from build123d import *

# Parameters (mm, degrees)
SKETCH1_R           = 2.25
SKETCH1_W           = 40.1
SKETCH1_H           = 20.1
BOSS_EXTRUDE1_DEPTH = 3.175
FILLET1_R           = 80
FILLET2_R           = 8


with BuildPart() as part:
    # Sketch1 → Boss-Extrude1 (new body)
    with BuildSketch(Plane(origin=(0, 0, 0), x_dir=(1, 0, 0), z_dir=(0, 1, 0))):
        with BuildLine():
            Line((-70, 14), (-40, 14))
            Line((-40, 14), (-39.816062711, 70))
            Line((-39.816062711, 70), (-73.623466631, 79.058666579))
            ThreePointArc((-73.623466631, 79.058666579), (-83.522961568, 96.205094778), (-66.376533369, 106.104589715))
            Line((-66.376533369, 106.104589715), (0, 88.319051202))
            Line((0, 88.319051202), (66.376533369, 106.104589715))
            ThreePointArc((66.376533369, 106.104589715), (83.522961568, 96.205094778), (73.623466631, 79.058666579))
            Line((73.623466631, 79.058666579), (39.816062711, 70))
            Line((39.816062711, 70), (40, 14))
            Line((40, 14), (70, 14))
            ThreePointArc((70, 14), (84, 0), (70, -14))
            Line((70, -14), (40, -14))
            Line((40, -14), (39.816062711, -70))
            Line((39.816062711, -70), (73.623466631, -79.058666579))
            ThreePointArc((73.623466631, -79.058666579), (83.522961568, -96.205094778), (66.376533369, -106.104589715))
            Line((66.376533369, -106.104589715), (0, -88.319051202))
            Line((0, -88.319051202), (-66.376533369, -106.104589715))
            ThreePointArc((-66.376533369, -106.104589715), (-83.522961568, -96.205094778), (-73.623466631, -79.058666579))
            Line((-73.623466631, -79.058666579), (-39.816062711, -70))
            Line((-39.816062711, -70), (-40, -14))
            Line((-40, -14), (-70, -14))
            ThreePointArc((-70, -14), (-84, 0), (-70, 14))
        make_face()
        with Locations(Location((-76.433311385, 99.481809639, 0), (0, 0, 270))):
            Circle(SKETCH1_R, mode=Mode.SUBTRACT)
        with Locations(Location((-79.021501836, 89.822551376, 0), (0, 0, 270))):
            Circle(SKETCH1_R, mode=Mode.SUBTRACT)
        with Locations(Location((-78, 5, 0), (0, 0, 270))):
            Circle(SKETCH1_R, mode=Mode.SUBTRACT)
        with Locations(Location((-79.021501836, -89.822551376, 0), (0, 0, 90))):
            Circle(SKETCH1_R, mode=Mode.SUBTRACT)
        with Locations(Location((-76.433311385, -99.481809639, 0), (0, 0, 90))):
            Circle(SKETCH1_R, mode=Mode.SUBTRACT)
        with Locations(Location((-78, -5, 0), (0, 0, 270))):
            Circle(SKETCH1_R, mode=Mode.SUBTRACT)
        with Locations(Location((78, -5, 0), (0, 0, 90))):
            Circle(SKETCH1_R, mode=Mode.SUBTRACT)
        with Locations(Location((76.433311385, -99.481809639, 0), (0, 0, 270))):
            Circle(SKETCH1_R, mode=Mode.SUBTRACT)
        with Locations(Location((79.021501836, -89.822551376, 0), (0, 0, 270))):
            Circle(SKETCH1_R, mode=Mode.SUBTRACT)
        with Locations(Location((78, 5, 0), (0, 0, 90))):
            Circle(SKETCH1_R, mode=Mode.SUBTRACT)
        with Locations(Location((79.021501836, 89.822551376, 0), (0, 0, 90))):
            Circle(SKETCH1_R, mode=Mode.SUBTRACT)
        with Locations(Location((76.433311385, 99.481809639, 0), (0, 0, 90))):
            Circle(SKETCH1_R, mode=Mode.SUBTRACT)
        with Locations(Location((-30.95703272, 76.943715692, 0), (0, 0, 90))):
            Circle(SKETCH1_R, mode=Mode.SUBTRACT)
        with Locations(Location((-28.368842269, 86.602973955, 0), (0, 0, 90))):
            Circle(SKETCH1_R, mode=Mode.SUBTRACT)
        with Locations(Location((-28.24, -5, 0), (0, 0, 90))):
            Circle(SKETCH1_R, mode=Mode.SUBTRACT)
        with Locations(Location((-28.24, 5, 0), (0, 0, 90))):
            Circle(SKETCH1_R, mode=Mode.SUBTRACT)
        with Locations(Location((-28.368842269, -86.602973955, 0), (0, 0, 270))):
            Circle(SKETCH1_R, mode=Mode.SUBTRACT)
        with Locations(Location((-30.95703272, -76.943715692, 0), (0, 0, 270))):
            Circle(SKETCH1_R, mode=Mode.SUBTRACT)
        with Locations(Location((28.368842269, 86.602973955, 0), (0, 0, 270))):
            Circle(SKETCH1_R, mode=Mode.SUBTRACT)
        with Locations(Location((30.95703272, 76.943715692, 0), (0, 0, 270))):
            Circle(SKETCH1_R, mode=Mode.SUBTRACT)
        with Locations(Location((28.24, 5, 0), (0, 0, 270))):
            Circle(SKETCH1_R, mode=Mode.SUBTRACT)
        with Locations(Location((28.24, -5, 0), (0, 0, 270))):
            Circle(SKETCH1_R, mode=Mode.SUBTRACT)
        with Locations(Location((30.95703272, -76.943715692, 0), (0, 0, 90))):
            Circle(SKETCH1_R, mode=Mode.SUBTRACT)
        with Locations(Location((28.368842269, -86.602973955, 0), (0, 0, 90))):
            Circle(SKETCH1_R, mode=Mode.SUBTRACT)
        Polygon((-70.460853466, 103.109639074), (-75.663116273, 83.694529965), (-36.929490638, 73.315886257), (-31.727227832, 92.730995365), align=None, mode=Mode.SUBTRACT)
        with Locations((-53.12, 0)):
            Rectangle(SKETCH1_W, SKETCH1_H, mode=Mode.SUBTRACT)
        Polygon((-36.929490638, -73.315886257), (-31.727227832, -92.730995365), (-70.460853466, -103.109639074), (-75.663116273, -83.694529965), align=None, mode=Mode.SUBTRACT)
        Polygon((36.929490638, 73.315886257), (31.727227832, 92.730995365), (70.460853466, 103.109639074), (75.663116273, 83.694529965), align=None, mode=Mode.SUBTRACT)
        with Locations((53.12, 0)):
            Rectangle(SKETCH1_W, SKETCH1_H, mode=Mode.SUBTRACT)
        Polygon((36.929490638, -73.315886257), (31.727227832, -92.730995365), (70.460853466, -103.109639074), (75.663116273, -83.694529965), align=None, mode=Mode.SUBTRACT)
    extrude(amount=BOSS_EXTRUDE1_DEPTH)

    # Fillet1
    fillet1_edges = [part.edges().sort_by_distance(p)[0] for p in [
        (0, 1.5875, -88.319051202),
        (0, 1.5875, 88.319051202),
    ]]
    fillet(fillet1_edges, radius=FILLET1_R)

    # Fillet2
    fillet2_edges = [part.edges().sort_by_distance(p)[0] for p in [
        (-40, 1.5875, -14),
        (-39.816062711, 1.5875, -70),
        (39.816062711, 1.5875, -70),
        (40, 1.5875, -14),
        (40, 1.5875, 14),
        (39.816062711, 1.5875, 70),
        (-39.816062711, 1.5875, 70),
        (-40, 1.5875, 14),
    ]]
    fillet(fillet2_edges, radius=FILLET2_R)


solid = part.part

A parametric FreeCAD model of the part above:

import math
import FreeCAD as App
import Part
import Sketcher
Q = App.Units.Quantity


def edges_at(feature, points):
    """Names of the edges that pass closest to the given points."""
    edges = feature.Shape.Edges
    near = lambda p: min(range(len(edges)), key=lambda i: edges[i].distToShape(Part.Vertex(*p))[0])
    return sorted({f"Edge{near(p) + 1}" for p in points})


def add_polygon(sketch, points):
    """Adds a closed chain of lines whose ends are joined by coincident constraints."""
    first, n = sketch.GeometryCount, len(points)
    for a, b in zip(points, points[1:] + points[:1]):
        sketch.addGeometry(Part.LineSegment(App.Vector(*a, 0), App.Vector(*b, 0)), False)
    for i in range(n):
        sketch.addConstraint(Sketcher.Constraint("Coincident", first + i, 2, first + (i + 1) % n, 1))

doc = App.newDocument("Part")
params = doc.addObject("Spreadsheet::Sheet", "Params")
for row, (alias, value) in enumerate([
    ("sketch1_radius", "14 mm"),
    ("sketch1_diameter", "4.5 mm"),
    ("sketch1_width", "30 mm"),
    ("sketch1_length", "35 mm"),
    ("sketch1_width2", "40.1 mm"),
    ("pad1_length", "3.175 mm"),
    ("fillet_radius", "80 mm"),
    ("fillet2_radius", "8 mm"),
], start=1):
    params.set(f"A{row}", alias)
    params.set(f"B{row}", "=" + value)
    params.setAlias(f"B{row}", alias)

body = doc.addObject("PartDesign::Body", "Body")

sketch1 = body.newObject("Sketcher::SketchObject", "Sketch")
sketch1.AttachmentSupport = (doc.getObject("XZ_Plane"), [""])
sketch1.MapMode = "FlatFace"
sketch1.addGeometry(Part.LineSegment(App.Vector(-40, -14, 0), App.Vector(-70, -14, 0)), False)
sketch1.addGeometry(Part.ArcOfCircle(Part.Circle(App.Vector(-70, 0, 0), App.Vector(0, 0, 1), 14), math.radians(90), math.radians(270)), False)
sketch1.addGeometry(Part.LineSegment(App.Vector(-70, 14, 0), App.Vector(-40, 14, 0)), False)
sketch1.addGeometry(Part.LineSegment(App.Vector(-40, 14, 0), App.Vector(-39.816063, 70, 0)), False)
sketch1.addGeometry(Part.LineSegment(App.Vector(-39.816063, 70, 0), App.Vector(-73.623467, 79.058667, 0)), False)
sketch1.addGeometry(Part.ArcOfCircle(Part.Circle(App.Vector(-70, 92.581628, 0), App.Vector(0, 0, 1), 14), math.radians(75), math.radians(255)), False)
sketch1.addGeometry(Part.LineSegment(App.Vector(-66.376533, 106.10459, 0), App.Vector(0, 88.319051, 0)), False)
sketch1.addGeometry(Part.LineSegment(App.Vector(0, 88.319051, 0), App.Vector(66.376533, 106.10459, 0)), False)
sketch1.addGeometry(Part.ArcOfCircle(Part.Circle(App.Vector(70, 92.581628, 0), App.Vector(0, 0, 1), 14), math.radians(-75), math.radians(105)), False)
sketch1.addGeometry(Part.LineSegment(App.Vector(73.623467, 79.058667, 0), App.Vector(39.816063, 70, 0)), False)
sketch1.addGeometry(Part.LineSegment(App.Vector(39.816063, 70, 0), App.Vector(40, 14, 0)), False)
sketch1.addGeometry(Part.LineSegment(App.Vector(40, 14, 0), App.Vector(70, 14, 0)), False)
sketch1.addGeometry(Part.ArcOfCircle(Part.Circle(App.Vector(70, 0, 0), App.Vector(0, 0, 1), 14), math.radians(-90), math.radians(90)), False)
sketch1.addGeometry(Part.LineSegment(App.Vector(70, -14, 0), App.Vector(40, -14, 0)), False)
sketch1.addGeometry(Part.LineSegment(App.Vector(40, -14, 0), App.Vector(39.816063, -70, 0)), False)
sketch1.addGeometry(Part.LineSegment(App.Vector(39.816063, -70, 0), App.Vector(73.623467, -79.058667, 0)), False)
sketch1.addGeometry(Part.ArcOfCircle(Part.Circle(App.Vector(70, -92.581628, 0), App.Vector(0, 0, 1), 14), math.radians(-105), math.radians(75)), False)
sketch1.addGeometry(Part.LineSegment(App.Vector(66.376533, -106.10459, 0), App.Vector(0, -88.319051, 0)), False)
sketch1.addGeometry(Part.LineSegment(App.Vector(0, -88.319051, 0), App.Vector(-66.376533, -106.10459, 0)), False)
sketch1.addGeometry(Part.ArcOfCircle(Part.Circle(App.Vector(-70, -92.581628, 0), App.Vector(0, 0, 1), 14), math.radians(105), math.radians(285)), False)
sketch1.addGeometry(Part.LineSegment(App.Vector(-73.623467, -79.058667, 0), App.Vector(-39.816063, -70, 0)), False)
sketch1.addGeometry(Part.LineSegment(App.Vector(-39.816063, -70, 0), App.Vector(-40, -14, 0)), False)
sketch1.addGeometry(Part.Circle(App.Vector(76.433311, 99.48181, 0), App.Vector(0, 0, 1), 2.25), False)
sketch1.addGeometry(Part.Circle(App.Vector(79.021502, 89.822551, 0), App.Vector(0, 0, 1), 2.25), False)
add_polygon(sketch1, [(36.929491, 73.315886), (75.663116, 83.69453), (70.460853, 103.109639), (31.727228, 92.730995)])
sketch1.addGeometry(Part.Circle(App.Vector(28.368842, 86.602974, 0), App.Vector(0, 0, 1), 2.25), False)
sketch1.addGeometry(Part.Circle(App.Vector(30.957033, 76.943716, 0), App.Vector(0, 0, 1), 2.25), False)
sketch1.addGeometry(Part.Circle(App.Vector(78, 5, 0), App.Vector(0, 0, 1), 2.25), False)
sketch1.addGeometry(Part.Circle(App.Vector(28.24, 5, 0), App.Vector(0, 0, 1), 2.25), False)
sketch1.addGeometry(Part.Circle(App.Vector(-28.368842, 86.602974, 0), App.Vector(0, 0, 1), 2.25), False)
sketch1.addGeometry(Part.Circle(App.Vector(-30.957033, 76.943716, 0), App.Vector(0, 0, 1), 2.25), False)
add_polygon(sketch1, [(-36.929491, 73.315886), (-31.727228, 92.730995), (-70.460853, 103.109639), (-75.663116, 83.69453)])
sketch1.addGeometry(Part.Circle(App.Vector(-76.433311, 99.48181, 0), App.Vector(0, 0, 1), 2.25), False)
sketch1.addGeometry(Part.Circle(App.Vector(-79.021502, 89.822551, 0), App.Vector(0, 0, 1), 2.25), False)
sketch1.addGeometry(Part.Circle(App.Vector(-28.24, 5, 0), App.Vector(0, 0, 1), 2.25), False)
sketch1.addGeometry(Part.Circle(App.Vector(-78, 5, 0), App.Vector(0, 0, 1), 2.25), False)
sketch1.addGeometry(Part.Circle(App.Vector(78, -5, 0), App.Vector(0, 0, 1), 2.25), False)
add_polygon(sketch1, [(33.07, 10.05), (33.07, -10.05), (73.17, -10.05), (73.17, 10.05)])
sketch1.addGeometry(Part.Circle(App.Vector(28.24, -5, 0), App.Vector(0, 0, 1), 2.25), False)
sketch1.addGeometry(Part.Circle(App.Vector(79.021502, -89.822551, 0), App.Vector(0, 0, 1), 2.25), False)
sketch1.addGeometry(Part.Circle(App.Vector(76.433311, -99.48181, 0), App.Vector(0, 0, 1), 2.25), False)
add_polygon(sketch1, [(36.929491, -73.315886), (31.727228, -92.730995), (70.460853, -103.109639), (75.663116, -83.69453)])
sketch1.addGeometry(Part.Circle(App.Vector(30.957033, -76.943716, 0), App.Vector(0, 0, 1), 2.25), False)
sketch1.addGeometry(Part.Circle(App.Vector(28.368842, -86.602974, 0), App.Vector(0, 0, 1), 2.25), False)
sketch1.addGeometry(Part.Circle(App.Vector(-28.24, -5, 0), App.Vector(0, 0, 1), 2.25), False)
add_polygon(sketch1, [(-73.17, 10.05), (-73.17, -10.05), (-33.07, -10.05), (-33.07, 10.05)])
sketch1.addGeometry(Part.Circle(App.Vector(-78, -5, 0), App.Vector(0, 0, 1), 2.25), False)
sketch1.addGeometry(Part.Circle(App.Vector(-30.957033, -76.943716, 0), App.Vector(0, 0, 1), 2.25), False)
sketch1.addGeometry(Part.Circle(App.Vector(-28.368842, -86.602974, 0), App.Vector(0, 0, 1), 2.25), False)
add_polygon(sketch1, [(-70.460853, -103.109639), (-31.727228, -92.730995), (-36.929491, -73.315886), (-75.663116, -83.69453)])
sketch1.addGeometry(Part.Circle(App.Vector(-79.021502, -89.822551, 0), App.Vector(0, 0, 1), 2.25), False)
sketch1.addGeometry(Part.Circle(App.Vector(-76.433311, -99.48181, 0), App.Vector(0, 0, 1), 2.25), False)
sketch1.addConstraint([
    Sketcher.Constraint("Tangent", 0, 2, 1, 2),
    Sketcher.Constraint("Tangent", 1, 1, 2, 1),
    Sketcher.Constraint("Coincident", 2, 2, 3, 1),
    Sketcher.Constraint("Coincident", 3, 2, 4, 1),
    Sketcher.Constraint("Tangent", 4, 2, 5, 2),
    Sketcher.Constraint("Tangent", 5, 1, 6, 1),
    Sketcher.Constraint("Coincident", 6, 2, 7, 1),
    Sketcher.Constraint("Tangent", 7, 2, 8, 2),
    Sketcher.Constraint("Tangent", 8, 1, 9, 1),
    Sketcher.Constraint("Coincident", 9, 2, 10, 1),
    Sketcher.Constraint("Coincident", 10, 2, 11, 1),
    Sketcher.Constraint("Tangent", 11, 2, 12, 2),
    Sketcher.Constraint("Tangent", 12, 1, 13, 1),
    Sketcher.Constraint("Coincident", 13, 2, 14, 1),
    Sketcher.Constraint("Coincident", 14, 2, 15, 1),
    Sketcher.Constraint("Tangent", 15, 2, 16, 2),
    Sketcher.Constraint("Tangent", 16, 1, 17, 1),
    Sketcher.Constraint("Coincident", 17, 2, 18, 1),
    Sketcher.Constraint("Tangent", 18, 2, 19, 2),
    Sketcher.Constraint("Tangent", 19, 1, 20, 1),
    Sketcher.Constraint("Coincident", 20, 2, 21, 1),
    Sketcher.Constraint("Coincident", 21, 2, 0, 1),
    Sketcher.Constraint("Horizontal", 0),
    Sketcher.Constraint("Horizontal", 2),
    Sketcher.Constraint("Horizontal", 11),
    Sketcher.Constraint("Horizontal", 13),
    Sketcher.Constraint("Vertical", 43),
    Sketcher.Constraint("Horizontal", 44),
    Sketcher.Constraint("Vertical", 45),
    Sketcher.Constraint("Horizontal", 46),
    Sketcher.Constraint("Vertical", 57),
    Sketcher.Constraint("Horizontal", 58),
    Sketcher.Constraint("Vertical", 59),
    Sketcher.Constraint("Horizontal", 60),
    Sketcher.Constraint("Equal", 1, 5),
    Sketcher.Constraint("Equal", 5, 8),
    Sketcher.Constraint("Equal", 8, 12),
    Sketcher.Constraint("Equal", 12, 16),
    Sketcher.Constraint("Equal", 16, 19),
    Sketcher.Constraint("Equal", 22, 23),
    Sketcher.Constraint("Equal", 23, 28),
    Sketcher.Constraint("Equal", 28, 29),
    Sketcher.Constraint("Equal", 29, 30),
    Sketcher.Constraint("Equal", 30, 31),
    Sketcher.Constraint("Equal", 31, 32),
    Sketcher.Constraint("Equal", 32, 33),
    Sketcher.Constraint("Equal", 33, 38),
    Sketcher.Constraint("Equal", 38, 39),
    Sketcher.Constraint("Equal", 39, 40),
    Sketcher.Constraint("Equal", 40, 41),
    Sketcher.Constraint("Equal", 41, 42),
    Sketcher.Constraint("Equal", 42, 47),
    Sketcher.Constraint("Equal", 47, 48),
    Sketcher.Constraint("Equal", 48, 49),
    Sketcher.Constraint("Equal", 49, 54),
    Sketcher.Constraint("Equal", 54, 55),
    Sketcher.Constraint("Equal", 55, 56),
    Sketcher.Constraint("Equal", 56, 61),
    Sketcher.Constraint("Equal", 61, 62),
    Sketcher.Constraint("Equal", 62, 63),
    Sketcher.Constraint("Equal", 63, 68),
    Sketcher.Constraint("Equal", 68, 69),
    Sketcher.Constraint("Symmetric", 1, 3, 12, 3, -1, 1),
    Sketcher.Constraint("Symmetric", 5, 3, 16, 3, -1, 1),
    Sketcher.Constraint("Symmetric", 8, 3, 19, 3, -1, 1),
    Sketcher.Constraint("Symmetric", 41, 3, 42, 3, -1, 1),
    Sketcher.Constraint("Symmetric", 40, 3, 47, 3, -1, 1),
    Sketcher.Constraint("Symmetric", 39, 3, 48, 3, -1, 1),
    Sketcher.Constraint("Symmetric", 38, 3, 49, 3, -1, 1),
    Sketcher.Constraint("Symmetric", 33, 3, 54, 3, -1, 1),
    Sketcher.Constraint("Symmetric", 32, 3, 55, 3, -1, 1),
    Sketcher.Constraint("Symmetric", 31, 3, 56, 3, -1, 1),
    Sketcher.Constraint("Symmetric", 30, 3, 61, 3, -1, 1),
    Sketcher.Constraint("Symmetric", 29, 3, 62, 3, -1, 1),
    Sketcher.Constraint("Symmetric", 28, 3, 63, 3, -1, 1),
    Sketcher.Constraint("Symmetric", 23, 3, 68, 3, -1, 1),
    Sketcher.Constraint("Symmetric", 22, 3, 69, 3, -1, 1),
    Sketcher.Constraint("Symmetric", 3, 2, 14, 2, -1, 1),
    Sketcher.Constraint("Symmetric", 6, 2, 17, 2, -1, 1),
    Sketcher.Constraint("Symmetric", 9, 2, 20, 2, -1, 1),
    Sketcher.Constraint("Symmetric", 34, 2, 50, 2, -1, 1),
    Sketcher.Constraint("Symmetric", 35, 2, 51, 2, -1, 1),
    Sketcher.Constraint("Symmetric", 36, 2, 52, 2, -1, 1),
    Sketcher.Constraint("Symmetric", 37, 2, 53, 2, -1, 1),
    Sketcher.Constraint("Symmetric", 45, 2, 57, 2, -1, 1),
    Sketcher.Constraint("Symmetric", 43, 2, 59, 2, -1, 1),
    Sketcher.Constraint("Symmetric", 26, 2, 64, 2, -1, 1),
    Sketcher.Constraint("Symmetric", 27, 2, 65, 2, -1, 1),
    Sketcher.Constraint("Symmetric", 24, 2, 66, 2, -1, 1),
    Sketcher.Constraint("Symmetric", 25, 2, 67, 2, -1, 1),
    Sketcher.Constraint("Symmetric", 5, 3, 8, 3, -2),
    Sketcher.Constraint("Symmetric", 28, 3, 32, 3, -2),
    Sketcher.Constraint("Symmetric", 29, 3, 33, 3, -2),
    Sketcher.Constraint("Symmetric", 22, 3, 38, 3, -2),
    Sketcher.Constraint("Symmetric", 23, 3, 39, 3, -2),
    Sketcher.Constraint("Symmetric", 31, 3, 40, 3, -2),
    Sketcher.Constraint("Symmetric", 30, 3, 41, 3, -2),
    Sketcher.Constraint("Symmetric", 3, 2, 9, 2, -2),
    Sketcher.Constraint("Symmetric", 2, 2, 10, 2, -2),
    Sketcher.Constraint("Symmetric", 26, 2, 34, 2, -2),
    Sketcher.Constraint("Symmetric", 25, 2, 35, 2, -2),
    Sketcher.Constraint("Symmetric", 24, 2, 36, 2, -2),
    Sketcher.Constraint("Symmetric", 27, 2, 37, 2, -2),
    Sketcher.Constraint("PointOnObject", 6, 2, -2),
    Sketcher.Constraint("Parallel", 4, 6),
    Sketcher.Constraint("Parallel", 3, 14),
    Sketcher.Constraint("Parallel", 10, 21),
    Sketcher.Constraint("Parallel", 20, 24),
    Sketcher.Constraint("Perpendicular", 24, 25),
    Sketcher.Constraint("Perpendicular", 25, 26),
    Sketcher.Constraint("Perpendicular", 26, 27),
    Sketcher.Constraint("Horizontal", 30, 3, 31, 3),
    Sketcher.Constraint("Horizontal", 44, 2, 57, 2),
    Sketcher.Constraint("Vertical", 1, 3, 5, 3),
    Sketcher.Constraint("Radius", 1, 14.0),
    Sketcher.Constraint("Diameter", 22, 4.5),
    Sketcher.Constraint("DistanceX", 0, 2, 0, 1, 30.0),
    Sketcher.Constraint("Angle", 4, Q("165 deg")),
    Sketcher.Constraint("Distance", 4, 35.0),
    Sketcher.Constraint("DistanceX", 44, 1, 44, 2, 40.1),
    Sketcher.Constraint("DistanceY", 43, 2, 43, 1, 20.1),
    Sketcher.Constraint("DistanceX", 1, 3, -1, 1, 70.0),
    Sketcher.Constraint("DistanceX", -1, 1, 30, 3, 78.0),
    Sketcher.Constraint("DistanceY", -1, 1, 30, 3, 5.0),
    Sketcher.Constraint("DistanceY", -1, 1, 3, 2, 70.0),
    Sketcher.Constraint("Distance", 24, 40.1),
    Sketcher.Constraint("Distance", 25, 20.1),
    Sketcher.Constraint("DistanceX", -1, 1, 31, 3, 28.24),
    Sketcher.Constraint("DistanceX", -1, 1, 43, 2, 33.07),
    Sketcher.Constraint("DistanceX", -1, 1, 23, 3, 79.021502),
    Sketcher.Constraint("DistanceX", -1, 1, 22, 3, 76.433311),
    Sketcher.Constraint("DistanceY", -1, 1, 22, 3, 99.48181),
    Sketcher.Constraint("DistanceY", -1, 1, 23, 3, 89.822551),
    Sketcher.Constraint("DistanceY", -1, 1, 24, 2, 83.69453),
    Sketcher.Constraint("DistanceX", -1, 1, 27, 2, 36.929491),
    Sketcher.Constraint("DistanceX", -1, 1, 28, 3, 28.368842),
    Sketcher.Constraint("DistanceY", -1, 1, 28, 3, 86.602974),
    Sketcher.Constraint("DistanceX", -1, 1, 29, 3, 30.957033),
    Sketcher.Constraint("DistanceY", -1, 1, 29, 3, 76.943716),
])
sketch1.setExpression("Constraints[138]", "Params.sketch1_radius")
sketch1.setExpression("Constraints[139]", "Params.sketch1_diameter")
sketch1.setExpression("Constraints[140]", "Params.sketch1_width")
sketch1.setExpression("Constraints[142]", "Params.sketch1_length")
sketch1.setExpression("Constraints[143]", "Params.sketch1_width2")
pad1 = body.newObject("PartDesign::Pad", "Pad")
pad1.Profile = sketch1
pad1.setExpression("Length", "Params.pad1_length")
pad1.Reversed = True
doc.recompute()

fillet = body.newObject("PartDesign::Fillet", "Fillet")
fillet.Base = (pad1, edges_at(pad1, [(0, 1.587, -88.319), (0, 1.587, 88.319)]))
fillet.setExpression("Radius", "Params.fillet_radius")
doc.recompute()

fillet2 = body.newObject("PartDesign::Fillet", "Fillet001")
fillet2.Base = (fillet, edges_at(fillet, [
    (-40, 1.587, -14),
    (-39.816, 1.587, -70),
    (39.816, 1.587, -70),
    (40, 1.587, -14),
    (40, 1.587, 14),
    (39.816, 1.587, 70),
    (-39.816, 1.587, 70),
    (-40, 1.587, 14),
]))
fillet2.setExpression("Radius", "Params.fillet2_radius")

doc.recompute()
